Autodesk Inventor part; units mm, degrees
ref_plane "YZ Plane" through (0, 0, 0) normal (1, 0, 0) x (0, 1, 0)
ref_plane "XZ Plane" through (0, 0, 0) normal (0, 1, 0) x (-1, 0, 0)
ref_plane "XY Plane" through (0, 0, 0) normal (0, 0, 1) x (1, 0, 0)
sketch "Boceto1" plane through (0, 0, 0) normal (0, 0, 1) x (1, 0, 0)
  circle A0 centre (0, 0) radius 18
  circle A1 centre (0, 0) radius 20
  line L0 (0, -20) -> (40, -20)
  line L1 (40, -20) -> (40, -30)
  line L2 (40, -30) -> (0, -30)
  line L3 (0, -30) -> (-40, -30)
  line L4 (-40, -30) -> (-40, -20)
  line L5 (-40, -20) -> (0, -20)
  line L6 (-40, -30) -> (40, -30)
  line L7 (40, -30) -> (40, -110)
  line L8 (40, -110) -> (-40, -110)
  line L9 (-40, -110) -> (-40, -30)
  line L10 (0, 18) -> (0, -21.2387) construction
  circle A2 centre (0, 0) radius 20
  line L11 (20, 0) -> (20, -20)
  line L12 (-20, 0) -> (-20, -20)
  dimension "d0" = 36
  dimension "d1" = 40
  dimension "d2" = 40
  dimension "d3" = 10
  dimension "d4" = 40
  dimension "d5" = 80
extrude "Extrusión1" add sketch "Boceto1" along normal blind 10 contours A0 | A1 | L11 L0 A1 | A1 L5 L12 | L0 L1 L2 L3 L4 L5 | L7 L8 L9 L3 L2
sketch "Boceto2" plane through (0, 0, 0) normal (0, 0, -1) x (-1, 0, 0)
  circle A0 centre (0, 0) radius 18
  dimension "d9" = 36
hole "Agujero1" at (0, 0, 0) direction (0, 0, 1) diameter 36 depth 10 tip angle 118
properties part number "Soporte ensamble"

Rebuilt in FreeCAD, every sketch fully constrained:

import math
import FreeCAD as App
import Part
import Sketcher
from FreeCAD import Vector
Q = App.Units.Quantity

doc = App.newDocument("Part")
params = doc.addObject("Spreadsheet::Sheet", "Params")
for row, (alias, value) in enumerate([
    ("sketch1_radius", "20 mm"),
    ("sketch1_width", "80 mm"),
    ("sketch1_height", "90 mm"),
    ("pad1_length", "10 mm"),
    ("sketch2_diameter", "36 mm"),
    ("hole_diameter", "36 mm"),
    ("hole_depth", "10 mm"),
], start=1):
    params.set(f"A{row}", alias)
    params.set(f"B{row}", "=" + value)
    params.setAlias(f"B{row}", alias)

body = doc.addObject("PartDesign::Body", "Body")

sketch1 = doc.addObject("Sketcher::SketchObject", "Sketch")
body.addObject(sketch1)
sketch1.AttachmentSupport = (doc.XY_Plane, [""])
sketch1.MapMode = "FlatFace"
sketch1.addGeometry([
    Part.ArcOfCircle(Part.Circle(Vector(0, 0, 0), Vector(0, 0, 1), 20), math.radians(0), math.radians(180)),
    Part.LineSegment(Vector(-20, 0, 0), Vector(-20, -20, 0)),
    Part.LineSegment(Vector(-20, -20, 0), Vector(-40, -20, 0)),
    Part.LineSegment(Vector(-40, -20, 0), Vector(-40, -110, 0)),
    Part.LineSegment(Vector(-40, -110, 0), Vector(40, -110, 0)),
    Part.LineSegment(Vector(40, -110, 0), Vector(40, -20, 0)),
    Part.LineSegment(Vector(40, -20, 0), Vector(20, -20, 0)),
    Part.LineSegment(Vector(20, -20, 0), Vector(20, 0, 0)),
], False)
sketch1.addConstraint([
    Sketcher.Constraint("Tangent", 0, 2, 1, 1),
    Sketcher.Constraint("Coincident", 1, 2, 2, 1),
    Sketcher.Constraint("Coincident", 2, 2, 3, 1),
    Sketcher.Constraint("Coincident", 3, 2, 4, 1),
    Sketcher.Constraint("Coincident", 4, 2, 5, 1),
    Sketcher.Constraint("Coincident", 5, 2, 6, 1),
    Sketcher.Constraint("Coincident", 6, 2, 7, 1),
    Sketcher.Constraint("Tangent", 7, 2, 0, 1),
    Sketcher.Constraint("Vertical", 1),
    Sketcher.Constraint("Horizontal", 2),
    Sketcher.Constraint("Vertical", 3),
    Sketcher.Constraint("Horizontal", 4),
    Sketcher.Constraint("Vertical", 5),
    Sketcher.Constraint("Horizontal", 6),
    Sketcher.Constraint("Vertical", 7),
    Sketcher.Constraint("Coincident", 0, 3, -1, 1),
    Sketcher.Constraint("Symmetric", 2, 2, 5, 2, -2),
    Sketcher.Constraint("Equal", 6, 1),
    Sketcher.Constraint("Radius", 0, Q("20 mm")),
    Sketcher.Constraint("DistanceX", 4, 1, 4, 2, Q("80 mm")),
    Sketcher.Constraint("DistanceY", 3, 2, 3, 1, Q("90 mm")),
])
sketch1.setExpression("Constraints[18]", "Params.sketch1_radius")
sketch1.setExpression("Constraints[19]", "Params.sketch1_width")
sketch1.setExpression("Constraints[20]", "Params.sketch1_height")
pad1 = doc.addObject("PartDesign::Pad", "Pad")
body.addObject(pad1)
pad1.Profile = sketch1
pad1.setExpression("Length", "Params.pad1_length")

sketch2 = doc.addObject("Sketcher::SketchObject", "Sketch001")
body.addObject(sketch2)
sketch2.AttachmentSupport = (doc.XY_Plane, [""])
sketch2.MapMode = "FlatFace"
sketch2.addGeometry(Part.Circle(Vector(0, 0, 0), Vector(0, 0, 1), 18), False)
sketch2.addConstraint([
    Sketcher.Constraint("Coincident", 0, 3, -1, 1),
    Sketcher.Constraint("Diameter", 0, Q("36 mm")),
])
sketch2.setExpression("Constraints[1]", "Params.sketch2_diameter")
doc.recompute()
hole = doc.addObject("PartDesign::Hole", "Hole")
body.addObject(hole)
hole.Profile = sketch2
hole.ThreadType = "None"
hole.setExpression("Diameter", "Params.hole_diameter")
hole.DepthType = "Dimension"
hole.setExpression("Depth", "Params.hole_depth")
hole.DrillPoint = "Angled"
hole.DrillPointAngle = 118
hole.Reversed = True

doc.recompute()
